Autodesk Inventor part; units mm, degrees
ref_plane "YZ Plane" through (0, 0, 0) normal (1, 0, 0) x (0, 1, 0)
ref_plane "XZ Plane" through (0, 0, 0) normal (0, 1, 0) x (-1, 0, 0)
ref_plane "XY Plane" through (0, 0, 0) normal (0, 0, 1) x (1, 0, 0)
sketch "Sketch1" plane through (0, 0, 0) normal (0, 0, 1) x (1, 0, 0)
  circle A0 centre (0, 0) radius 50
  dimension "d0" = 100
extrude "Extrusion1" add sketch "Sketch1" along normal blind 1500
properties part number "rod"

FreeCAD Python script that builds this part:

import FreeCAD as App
import Part
import Sketcher
from FreeCAD import Vector
Q = App.Units.Quantity

doc = App.newDocument("Part")
body = doc.addObject("PartDesign::Body", "Body")

sketch1 = body.newObject("Sketcher::SketchObject", "Sketch")
sketch1.AttachmentSupport = (doc.getObject("XY_Plane"), [""])
sketch1.MapMode = "FlatFace"
sketch1.addGeometry(Part.Circle(Vector(0, 0, 0), Vector(0, 0, 1), 50), False)
sketch1.addConstraint(Sketcher.Constraint("Coincident", 0, 3, -1, 1))
sketch1.addConstraint(Sketcher.Constraint("Diameter", 0, Q("100 mm")))
pad1 = body.newObject("PartDesign::Pad", "Pad")
pad1.Profile = sketch1
pad1.Length = 1500

doc.recompute()
